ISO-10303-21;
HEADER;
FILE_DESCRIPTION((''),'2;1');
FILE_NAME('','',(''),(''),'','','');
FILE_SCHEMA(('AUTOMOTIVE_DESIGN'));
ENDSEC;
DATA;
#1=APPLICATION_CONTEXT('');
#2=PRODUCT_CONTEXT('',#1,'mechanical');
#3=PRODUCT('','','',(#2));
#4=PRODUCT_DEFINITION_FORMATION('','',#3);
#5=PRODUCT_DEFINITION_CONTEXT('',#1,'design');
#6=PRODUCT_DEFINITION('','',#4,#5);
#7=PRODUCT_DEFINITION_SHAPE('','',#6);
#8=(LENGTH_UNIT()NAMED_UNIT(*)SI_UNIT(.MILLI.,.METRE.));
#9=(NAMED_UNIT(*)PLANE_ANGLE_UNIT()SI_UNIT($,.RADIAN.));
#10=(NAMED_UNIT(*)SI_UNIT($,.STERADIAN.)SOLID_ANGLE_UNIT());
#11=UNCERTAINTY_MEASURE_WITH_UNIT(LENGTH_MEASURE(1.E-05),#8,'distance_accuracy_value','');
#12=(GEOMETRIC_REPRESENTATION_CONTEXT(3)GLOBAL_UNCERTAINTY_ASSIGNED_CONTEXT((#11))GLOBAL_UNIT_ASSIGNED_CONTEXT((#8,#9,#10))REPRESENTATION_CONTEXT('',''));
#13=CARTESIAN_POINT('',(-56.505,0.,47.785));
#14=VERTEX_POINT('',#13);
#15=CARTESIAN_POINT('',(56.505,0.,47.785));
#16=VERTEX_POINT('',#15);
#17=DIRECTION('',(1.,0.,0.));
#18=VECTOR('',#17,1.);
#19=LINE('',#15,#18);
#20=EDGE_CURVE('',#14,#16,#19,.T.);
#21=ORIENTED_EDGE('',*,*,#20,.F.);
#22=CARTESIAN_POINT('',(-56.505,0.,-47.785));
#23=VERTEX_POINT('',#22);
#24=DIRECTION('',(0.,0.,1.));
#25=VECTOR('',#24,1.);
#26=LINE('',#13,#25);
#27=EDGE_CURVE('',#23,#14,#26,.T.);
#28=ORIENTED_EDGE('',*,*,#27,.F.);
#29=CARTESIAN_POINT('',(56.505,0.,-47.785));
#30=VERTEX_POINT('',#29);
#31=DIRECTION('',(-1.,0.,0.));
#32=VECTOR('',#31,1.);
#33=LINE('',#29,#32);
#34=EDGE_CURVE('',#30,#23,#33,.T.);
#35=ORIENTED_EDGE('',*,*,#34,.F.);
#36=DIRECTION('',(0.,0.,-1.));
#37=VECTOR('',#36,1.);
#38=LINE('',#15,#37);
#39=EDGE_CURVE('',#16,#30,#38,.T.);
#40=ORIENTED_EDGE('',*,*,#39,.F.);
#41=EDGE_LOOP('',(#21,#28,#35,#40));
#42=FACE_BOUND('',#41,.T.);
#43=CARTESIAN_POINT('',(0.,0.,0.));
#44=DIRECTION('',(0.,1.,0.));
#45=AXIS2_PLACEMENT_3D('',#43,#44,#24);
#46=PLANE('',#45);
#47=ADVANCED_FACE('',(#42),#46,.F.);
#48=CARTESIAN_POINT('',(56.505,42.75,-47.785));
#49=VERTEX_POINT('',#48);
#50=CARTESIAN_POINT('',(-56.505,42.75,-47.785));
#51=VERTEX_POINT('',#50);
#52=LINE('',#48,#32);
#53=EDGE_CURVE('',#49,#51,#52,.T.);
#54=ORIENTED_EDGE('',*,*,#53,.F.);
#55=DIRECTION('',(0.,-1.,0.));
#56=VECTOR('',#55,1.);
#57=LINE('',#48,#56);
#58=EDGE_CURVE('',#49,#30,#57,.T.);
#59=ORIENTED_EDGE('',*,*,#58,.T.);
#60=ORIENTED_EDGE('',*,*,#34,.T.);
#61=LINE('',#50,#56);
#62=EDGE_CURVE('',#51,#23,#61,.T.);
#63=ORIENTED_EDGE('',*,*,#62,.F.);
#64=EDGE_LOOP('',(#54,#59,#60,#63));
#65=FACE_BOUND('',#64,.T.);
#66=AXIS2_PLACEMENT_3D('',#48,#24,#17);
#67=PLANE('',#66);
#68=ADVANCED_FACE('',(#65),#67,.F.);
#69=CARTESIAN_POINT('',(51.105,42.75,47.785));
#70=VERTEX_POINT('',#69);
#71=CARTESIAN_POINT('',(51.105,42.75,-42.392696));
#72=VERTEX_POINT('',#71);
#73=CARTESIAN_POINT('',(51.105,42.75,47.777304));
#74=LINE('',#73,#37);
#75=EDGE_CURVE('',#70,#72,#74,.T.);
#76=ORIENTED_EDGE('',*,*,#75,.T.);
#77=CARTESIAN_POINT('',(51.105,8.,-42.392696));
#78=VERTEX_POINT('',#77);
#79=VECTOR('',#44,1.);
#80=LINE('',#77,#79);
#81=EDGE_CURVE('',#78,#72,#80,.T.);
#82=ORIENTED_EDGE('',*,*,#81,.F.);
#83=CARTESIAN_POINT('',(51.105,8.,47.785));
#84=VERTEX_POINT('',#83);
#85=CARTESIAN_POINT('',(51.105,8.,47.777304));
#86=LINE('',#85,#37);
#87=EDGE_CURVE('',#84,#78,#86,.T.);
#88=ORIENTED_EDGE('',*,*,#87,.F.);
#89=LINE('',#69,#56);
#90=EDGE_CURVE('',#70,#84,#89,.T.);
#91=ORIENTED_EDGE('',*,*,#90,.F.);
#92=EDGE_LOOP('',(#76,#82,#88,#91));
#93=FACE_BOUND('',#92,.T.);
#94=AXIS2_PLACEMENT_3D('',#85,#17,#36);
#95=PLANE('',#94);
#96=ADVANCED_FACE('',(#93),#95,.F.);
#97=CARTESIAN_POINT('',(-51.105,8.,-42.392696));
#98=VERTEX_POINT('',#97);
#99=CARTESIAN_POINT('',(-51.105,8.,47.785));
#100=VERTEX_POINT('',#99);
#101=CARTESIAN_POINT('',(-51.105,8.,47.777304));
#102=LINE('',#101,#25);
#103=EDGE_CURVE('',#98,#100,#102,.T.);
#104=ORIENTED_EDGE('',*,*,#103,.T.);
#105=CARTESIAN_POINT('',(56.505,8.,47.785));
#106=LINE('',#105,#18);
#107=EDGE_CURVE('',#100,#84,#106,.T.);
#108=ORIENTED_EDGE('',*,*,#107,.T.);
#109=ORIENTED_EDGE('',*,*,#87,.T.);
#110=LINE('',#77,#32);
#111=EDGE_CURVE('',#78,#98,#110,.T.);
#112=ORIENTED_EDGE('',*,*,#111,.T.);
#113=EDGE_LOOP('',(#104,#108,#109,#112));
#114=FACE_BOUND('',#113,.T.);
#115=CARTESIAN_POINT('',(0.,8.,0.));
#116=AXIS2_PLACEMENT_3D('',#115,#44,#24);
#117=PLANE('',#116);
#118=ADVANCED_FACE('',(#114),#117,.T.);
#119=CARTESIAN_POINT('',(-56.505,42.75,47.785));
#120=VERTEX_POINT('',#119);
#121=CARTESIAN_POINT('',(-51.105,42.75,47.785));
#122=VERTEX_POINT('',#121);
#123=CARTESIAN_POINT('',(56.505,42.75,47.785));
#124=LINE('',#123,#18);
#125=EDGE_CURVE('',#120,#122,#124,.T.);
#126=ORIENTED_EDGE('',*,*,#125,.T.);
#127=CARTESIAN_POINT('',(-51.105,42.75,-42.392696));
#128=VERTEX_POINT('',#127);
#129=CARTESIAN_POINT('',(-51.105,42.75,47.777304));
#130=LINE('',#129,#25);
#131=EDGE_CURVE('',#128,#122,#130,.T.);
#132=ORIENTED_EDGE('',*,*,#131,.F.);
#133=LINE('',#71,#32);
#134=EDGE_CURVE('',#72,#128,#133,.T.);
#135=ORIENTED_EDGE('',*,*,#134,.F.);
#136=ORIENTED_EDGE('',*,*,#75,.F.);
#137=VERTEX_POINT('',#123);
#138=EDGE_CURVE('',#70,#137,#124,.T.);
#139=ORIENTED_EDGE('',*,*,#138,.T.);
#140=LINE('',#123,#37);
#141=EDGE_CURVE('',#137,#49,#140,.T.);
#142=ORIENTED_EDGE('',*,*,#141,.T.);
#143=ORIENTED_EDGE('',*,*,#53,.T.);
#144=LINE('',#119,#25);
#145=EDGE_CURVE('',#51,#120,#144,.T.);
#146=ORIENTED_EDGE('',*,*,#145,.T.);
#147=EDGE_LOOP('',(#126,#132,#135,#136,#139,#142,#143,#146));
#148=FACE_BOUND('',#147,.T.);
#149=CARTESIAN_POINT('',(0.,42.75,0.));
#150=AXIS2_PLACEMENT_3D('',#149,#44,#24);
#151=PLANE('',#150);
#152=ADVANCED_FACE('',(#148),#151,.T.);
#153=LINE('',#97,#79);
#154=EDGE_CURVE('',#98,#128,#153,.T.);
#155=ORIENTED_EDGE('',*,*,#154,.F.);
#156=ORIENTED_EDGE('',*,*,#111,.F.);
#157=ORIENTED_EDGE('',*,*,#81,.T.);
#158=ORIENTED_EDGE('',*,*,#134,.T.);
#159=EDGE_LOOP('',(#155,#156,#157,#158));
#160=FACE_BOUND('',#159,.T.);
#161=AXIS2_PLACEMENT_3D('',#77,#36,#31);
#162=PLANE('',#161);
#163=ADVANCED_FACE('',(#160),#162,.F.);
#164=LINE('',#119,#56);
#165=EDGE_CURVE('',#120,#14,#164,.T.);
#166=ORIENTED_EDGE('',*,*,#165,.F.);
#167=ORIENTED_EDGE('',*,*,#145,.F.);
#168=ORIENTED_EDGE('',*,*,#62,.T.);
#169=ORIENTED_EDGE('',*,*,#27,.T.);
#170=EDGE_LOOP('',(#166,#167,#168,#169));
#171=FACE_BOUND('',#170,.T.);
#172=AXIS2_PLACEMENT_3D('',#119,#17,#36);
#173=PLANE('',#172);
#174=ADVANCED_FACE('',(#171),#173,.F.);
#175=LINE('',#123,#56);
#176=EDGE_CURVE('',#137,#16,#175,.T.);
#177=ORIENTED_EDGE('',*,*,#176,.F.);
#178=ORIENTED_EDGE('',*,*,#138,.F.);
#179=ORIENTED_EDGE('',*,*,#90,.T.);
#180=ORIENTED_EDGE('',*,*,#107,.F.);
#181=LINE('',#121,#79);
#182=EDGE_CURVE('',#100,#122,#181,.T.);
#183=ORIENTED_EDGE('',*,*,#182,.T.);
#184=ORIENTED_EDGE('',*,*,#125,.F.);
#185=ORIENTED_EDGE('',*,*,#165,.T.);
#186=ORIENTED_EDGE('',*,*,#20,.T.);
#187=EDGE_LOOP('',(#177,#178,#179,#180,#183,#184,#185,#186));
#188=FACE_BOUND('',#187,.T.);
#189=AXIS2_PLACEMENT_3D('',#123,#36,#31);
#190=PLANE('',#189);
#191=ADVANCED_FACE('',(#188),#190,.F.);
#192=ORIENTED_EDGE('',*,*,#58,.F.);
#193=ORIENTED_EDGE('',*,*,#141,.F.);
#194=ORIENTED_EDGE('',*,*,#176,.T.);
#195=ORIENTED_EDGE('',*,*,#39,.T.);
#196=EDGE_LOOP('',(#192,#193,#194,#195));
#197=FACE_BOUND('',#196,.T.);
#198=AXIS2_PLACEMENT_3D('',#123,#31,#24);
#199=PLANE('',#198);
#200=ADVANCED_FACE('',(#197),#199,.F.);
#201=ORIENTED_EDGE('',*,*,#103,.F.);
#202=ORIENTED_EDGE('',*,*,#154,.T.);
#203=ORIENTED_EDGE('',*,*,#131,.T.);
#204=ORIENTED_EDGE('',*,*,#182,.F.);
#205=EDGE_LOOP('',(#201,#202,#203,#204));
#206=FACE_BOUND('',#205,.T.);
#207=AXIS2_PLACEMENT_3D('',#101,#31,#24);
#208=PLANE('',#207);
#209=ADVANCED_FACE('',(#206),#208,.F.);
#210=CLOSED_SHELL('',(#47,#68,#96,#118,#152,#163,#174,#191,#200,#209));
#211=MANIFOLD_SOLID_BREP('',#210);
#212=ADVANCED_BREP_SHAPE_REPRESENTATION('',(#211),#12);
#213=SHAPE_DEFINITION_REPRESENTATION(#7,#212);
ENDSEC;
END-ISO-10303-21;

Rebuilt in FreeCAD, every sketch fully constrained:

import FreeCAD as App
import Part
import Sketcher
from FreeCAD import Vector
Q = App.Units.Quantity

doc = App.newDocument("Part")
params = doc.addObject("Spreadsheet::Sheet", "Params")
for row, (alias, value) in enumerate([
    ("pad1_length", "42.75 mm"),
    ("sketch2_height", "3.55 in"),
    ("pocket1_length", "34.75 mm"),
    ("pocket2_length", "34.75 mm"),
], start=1):
    params.set(f"A{row}", alias)
    params.set(f"B{row}", "=" + value)
    params.setAlias(f"B{row}", alias)

body = doc.addObject("PartDesign::Body", "Body")

# Sketch on XZ plane
sketch1 = doc.addObject("Sketcher::SketchObject", "Sketch")
body.addObject(sketch1)
sketch1.AttachmentSupport = (doc.XZ_Plane, [""])
sketch1.MapMode = "FlatFace"
sketch1.addGeometry([
    Part.LineSegment(Vector(-57, -48, 0), Vector(-57, 48, 0)),
    Part.LineSegment(Vector(-57, 48, 0), Vector(57, 48, 0)),
    Part.LineSegment(Vector(57, 48, 0), Vector(57, -48, 0)),
    Part.LineSegment(Vector(57, -48, 0), Vector(-57, -48, 0)),
], False)
sketch1.addConstraint([
    Sketcher.Constraint("Coincident", 0, 2, 1, 1),
    Sketcher.Constraint("Coincident", 1, 2, 2, 1),
    Sketcher.Constraint("Coincident", 2, 2, 3, 1),
    Sketcher.Constraint("Coincident", 3, 2, 0, 1),
    Sketcher.Constraint("Vertical", 0),
    Sketcher.Constraint("Horizontal", 1),
    Sketcher.Constraint("Vertical", 2),
    Sketcher.Constraint("Horizontal", 3),
    Sketcher.Constraint("Symmetric", 0, 2, 2, 2, -1, 1),
    Sketcher.Constraint("DistanceX", 1, 1, 1, 2, 113.01),
    Sketcher.Constraint("DistanceY", 0, 1, 0, 2, 95.57),
])
pad1 = doc.addObject("PartDesign::Pad", "Pad")
body.addObject(pad1)
pad1.Profile = sketch1
pad1.setExpression("Length", "Params.pad1_length")
pad1.Reversed = True

# Sketch on XZ plane
sketch2 = doc.addObject("Sketcher::SketchObject", "Sketch001")
body.addObject(sketch2)
sketch2.AttachmentSupport = (doc.XZ_Plane, [""])
sketch2.MapMode = "FlatFace"
sketch2.AttachmentOffset = App.Placement(Vector(0, 0, -42.75), App.Rotation())
sketch2.addGeometry([
    Part.LineSegment(Vector(-51, -42, 0), Vector(-51, 48, 0)),
    Part.LineSegment(Vector(-51, 48, 0), Vector(51, 48, 0)),
    Part.LineSegment(Vector(51, 48, 0), Vector(51, -42, 0)),
    Part.LineSegment(Vector(51, -42, 0), Vector(-51, -42, 0)),
], False)
sketch2.addConstraint([
    Sketcher.Constraint("Coincident", 0, 2, 1, 1),
    Sketcher.Constraint("Coincident", 1, 2, 2, 1),
    Sketcher.Constraint("Coincident", 2, 2, 3, 1),
    Sketcher.Constraint("Coincident", 3, 2, 0, 1),
    Sketcher.Constraint("Vertical", 0),
    Sketcher.Constraint("Horizontal", 1),
    Sketcher.Constraint("Vertical", 2),
    Sketcher.Constraint("Horizontal", 3),
    Sketcher.Constraint("DistanceY", 0, 1, 0, 2, Q("3.55 in")),
    Sketcher.Constraint("DistanceX", 1, 1, 1, 2, 102.21),
    Sketcher.Constraint("DistanceX", 0, 2, -1, 1, 51.105),
    Sketcher.Constraint("DistanceY", -1, 1, 0, 2, 47.777304),
])
sketch2.setExpression("Constraints[8]", "Params.sketch2_height")
pocket1 = doc.addObject("PartDesign::Pocket", "Pocket")
body.addObject(pocket1)
pocket1.Profile = sketch2
pocket1.setExpression("Length", "Params.pocket1_length")
pocket1.Reversed = True

# Sketch on XZ plane
sketch3 = doc.addObject("Sketcher::SketchObject", "Sketch002")
body.addObject(sketch3)
sketch3.AttachmentSupport = (doc.XZ_Plane, [""])
sketch3.MapMode = "FlatFace"
sketch3.AttachmentOffset = App.Placement(Vector(0, 0, -42.75), App.Rotation())
sketch3.addGeometry([
    Part.LineSegment(Vector(-51, 43, 0), Vector(-51, 52, 0)),
    Part.LineSegment(Vector(-51, 52, 0), Vector(51, 52, 0)),
    Part.LineSegment(Vector(51, 52, 0), Vector(51, 43, 0)),
    Part.LineSegment(Vector(51, 43, 0), Vector(-51, 43, 0)),
], False)
sketch3.addConstraint([
    Sketcher.Constraint("Coincident", 0, 2, 1, 1),
    Sketcher.Constraint("Coincident", 1, 2, 2, 1),
    Sketcher.Constraint("Coincident", 2, 2, 3, 1),
    Sketcher.Constraint("Coincident", 3, 2, 0, 1),
    Sketcher.Constraint("Vertical", 0),
    Sketcher.Constraint("Horizontal", 1),
    Sketcher.Constraint("Vertical", 2),
    Sketcher.Constraint("Horizontal", 3),
    Sketcher.Constraint("DistanceX", 1, 1, 1, 2, 102.21),
    Sketcher.Constraint("DistanceY", 0, 1, 0, 2, 8.948309),
    Sketcher.Constraint("DistanceX", 0, 2, -1, 1, 51.105),
    Sketcher.Constraint("DistanceY", -1, 1, 0, 2, 52.251458),
])
pocket2 = doc.addObject("PartDesign::Pocket", "Pocket001")
body.addObject(pocket2)
pocket2.Profile = sketch3
pocket2.setExpression("Length", "Params.pocket2_length")
pocket2.Reversed = True

doc.recompute()
